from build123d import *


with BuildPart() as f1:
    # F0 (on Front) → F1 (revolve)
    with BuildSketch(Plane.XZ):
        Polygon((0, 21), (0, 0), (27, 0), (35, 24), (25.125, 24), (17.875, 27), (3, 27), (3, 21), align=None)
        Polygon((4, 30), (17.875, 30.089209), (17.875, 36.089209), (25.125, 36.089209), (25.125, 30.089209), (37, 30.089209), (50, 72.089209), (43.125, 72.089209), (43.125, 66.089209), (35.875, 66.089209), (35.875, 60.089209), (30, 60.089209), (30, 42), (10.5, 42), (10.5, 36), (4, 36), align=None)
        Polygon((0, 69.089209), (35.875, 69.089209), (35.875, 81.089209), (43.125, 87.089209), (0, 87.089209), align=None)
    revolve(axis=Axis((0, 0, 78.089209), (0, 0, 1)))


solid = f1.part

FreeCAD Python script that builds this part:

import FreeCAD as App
import Part
import Sketcher
from FreeCAD import Vector
Q = App.Units.Quantity


def add_polygon(sketch, points):
    """Adds a closed chain of lines whose ends are joined by coincident constraints."""
    first, n = sketch.GeometryCount, len(points)
    for a, b in zip(points, points[1:] + points[:1]):
        sketch.addGeometry(Part.LineSegment(App.Vector(*a, 0), App.Vector(*b, 0)), False)
    for i in range(n):
        sketch.addConstraint(Sketcher.Constraint("Coincident", first + i, 2, first + (i + 1) % n, 1))

doc = App.newDocument("Part")
body = doc.addObject("PartDesign::Body", "Body")
body.AllowCompound = True

# Sketch on XZ plane
sketch1 = body.newObject("Sketcher::SketchObject", "Sketch")
sketch1.AttachmentSupport = (doc.getObject("XZ_Plane"), [""])
sketch1.MapMode = "FlatFace"
add_polygon(sketch1, [(0, 21), (0, 0), (27, 0), (35, 24), (25.1, 24), (17.9, 27), (3, 27), (3, 21)])  # lines 0-7
add_polygon(sketch1, [(4, 30), (17.9, 30.1), (17.9, 36.1), (25.1, 36.1), (25.1, 30.1), (37, 30.1), (50, 72.1), (43.1, 72.1), (43.1, 66.1), (35.9, 66.1), (35.9, 60.1), (30, 60.1), (30, 42), (10.5, 42), (10.5, 36), (4, 36)])  # lines 8-23
add_polygon(sketch1, [(0, 69.1), (35.9, 69.1), (35.9, 81.1), (43.1, 87.1), (0, 87.1)])  # lines 24-28
sketch1.addConstraint([
    Sketcher.Constraint("Vertical", 0),
    Sketcher.Constraint("Horizontal", 1),
    Sketcher.Constraint("Horizontal", 3),
    Sketcher.Constraint("Horizontal", 5),
    Sketcher.Constraint("Vertical", 6),
    Sketcher.Constraint("Horizontal", 7),
    Sketcher.Constraint("Vertical", 9),
    Sketcher.Constraint("Horizontal", 10),
    Sketcher.Constraint("Vertical", 11),
    Sketcher.Constraint("Horizontal", 12),
    Sketcher.Constraint("Horizontal", 14),
    Sketcher.Constraint("Vertical", 15),
    Sketcher.Constraint("Horizontal", 16),
    Sketcher.Constraint("Vertical", 17),
    Sketcher.Constraint("Horizontal", 18),
    Sketcher.Constraint("Vertical", 19),
    Sketcher.Constraint("Horizontal", 20),
    Sketcher.Constraint("Vertical", 21),
    Sketcher.Constraint("Horizontal", 22),
    Sketcher.Constraint("Vertical", 23),
    Sketcher.Constraint("Horizontal", 24),
    Sketcher.Constraint("Vertical", 25),
    Sketcher.Constraint("Horizontal", 27),
    Sketcher.Constraint("Vertical", 28),
    Sketcher.Constraint("Coincident", 0, 2, -1, 1),
    Sketcher.Constraint("PointOnObject", 27, 2, -2),
    Sketcher.Constraint("Horizontal", 8, 2, 11, 2),
    Sketcher.Constraint("Vertical", 4, 2, 8, 2),
    Sketcher.Constraint("Vertical", 3, 2, 10, 2),
    Sketcher.Constraint("Vertical", 17, 2, 24, 2),
    Sketcher.Constraint("Vertical", 15, 2, 26, 2),
    Sketcher.Constraint("Equal", 10, 16),
    Sketcher.Constraint("Equal", 6, 9),
    Sketcher.Constraint("Equal", 11, 15),
    Sketcher.Constraint("Equal", 15, 17),
    Sketcher.Constraint("Equal", 17, 21),
    Sketcher.Constraint("Equal", 21, 23),
    Sketcher.Constraint("DistanceX", 1, 1, 1, 2, Q("27 mm")),
    Sketcher.Constraint("DistanceX", 7, 2, 7, 1, Q("3 mm")),
    Sketcher.Constraint("DistanceY", 0, 2, 0, 1, Q("21 mm")),
    Sketcher.Constraint("DistanceY", 6, 2, 6, 1, Q("6 mm")),
    Sketcher.Constraint("DistanceY", 25, 1, 25, 2, Q("12 mm")),
    Sketcher.Constraint("DistanceY", 28, 2, 28, 1, Q("18 mm")),
    Sketcher.Constraint("DistanceX", 20, 2, 20, 1, Q("19.5 mm")),
    Sketcher.Constraint("DistanceX", 22, 2, 22, 1, Q("6.5 mm")),
    Sketcher.Constraint("DistanceX", -1, 1, 2, 2, Q("35 mm")),
    Sketcher.Constraint("DistanceY", -1, 1, 2, 2, Q("24 mm")),
    Sketcher.Constraint("DistanceX", -1, 1, 12, 2, Q("37 mm")),
    Sketcher.Constraint("DistanceX", -1, 1, 13, 2, Q("50 mm")),
    Sketcher.Constraint("DistanceX", -1, 1, 18, 2, Q("30 mm")),
    Sketcher.Constraint("DistanceY", -1, 1, 19, 2, Q("42 mm")),
    Sketcher.Constraint("DistanceY", 10, 2, 13, 2, Q("36 mm")),
    Sketcher.Constraint("DistanceX", 10, 2, 14, 2, Q("18 mm")),
    Sketcher.Constraint("DistanceY", 16, 2, 24, 2, Q("3 mm")),
    Sketcher.Constraint("DistanceX", 10, 1, 10, 2, Q("7.25 mm")),
    Sketcher.Constraint("DistanceX", 3, 2, 3, 1, Q("9.875 mm")),
    Sketcher.Constraint("DistanceY", 19, 2, 19, 1, Q("18.089209 mm")),
])
revolution = body.newObject("PartDesign::Revolution", "Revolution")
revolution.Profile = sketch1
revolution.ReferenceAxis = (sketch1, ["V_Axis"])
revolution.Angle = 360

doc.recompute()
